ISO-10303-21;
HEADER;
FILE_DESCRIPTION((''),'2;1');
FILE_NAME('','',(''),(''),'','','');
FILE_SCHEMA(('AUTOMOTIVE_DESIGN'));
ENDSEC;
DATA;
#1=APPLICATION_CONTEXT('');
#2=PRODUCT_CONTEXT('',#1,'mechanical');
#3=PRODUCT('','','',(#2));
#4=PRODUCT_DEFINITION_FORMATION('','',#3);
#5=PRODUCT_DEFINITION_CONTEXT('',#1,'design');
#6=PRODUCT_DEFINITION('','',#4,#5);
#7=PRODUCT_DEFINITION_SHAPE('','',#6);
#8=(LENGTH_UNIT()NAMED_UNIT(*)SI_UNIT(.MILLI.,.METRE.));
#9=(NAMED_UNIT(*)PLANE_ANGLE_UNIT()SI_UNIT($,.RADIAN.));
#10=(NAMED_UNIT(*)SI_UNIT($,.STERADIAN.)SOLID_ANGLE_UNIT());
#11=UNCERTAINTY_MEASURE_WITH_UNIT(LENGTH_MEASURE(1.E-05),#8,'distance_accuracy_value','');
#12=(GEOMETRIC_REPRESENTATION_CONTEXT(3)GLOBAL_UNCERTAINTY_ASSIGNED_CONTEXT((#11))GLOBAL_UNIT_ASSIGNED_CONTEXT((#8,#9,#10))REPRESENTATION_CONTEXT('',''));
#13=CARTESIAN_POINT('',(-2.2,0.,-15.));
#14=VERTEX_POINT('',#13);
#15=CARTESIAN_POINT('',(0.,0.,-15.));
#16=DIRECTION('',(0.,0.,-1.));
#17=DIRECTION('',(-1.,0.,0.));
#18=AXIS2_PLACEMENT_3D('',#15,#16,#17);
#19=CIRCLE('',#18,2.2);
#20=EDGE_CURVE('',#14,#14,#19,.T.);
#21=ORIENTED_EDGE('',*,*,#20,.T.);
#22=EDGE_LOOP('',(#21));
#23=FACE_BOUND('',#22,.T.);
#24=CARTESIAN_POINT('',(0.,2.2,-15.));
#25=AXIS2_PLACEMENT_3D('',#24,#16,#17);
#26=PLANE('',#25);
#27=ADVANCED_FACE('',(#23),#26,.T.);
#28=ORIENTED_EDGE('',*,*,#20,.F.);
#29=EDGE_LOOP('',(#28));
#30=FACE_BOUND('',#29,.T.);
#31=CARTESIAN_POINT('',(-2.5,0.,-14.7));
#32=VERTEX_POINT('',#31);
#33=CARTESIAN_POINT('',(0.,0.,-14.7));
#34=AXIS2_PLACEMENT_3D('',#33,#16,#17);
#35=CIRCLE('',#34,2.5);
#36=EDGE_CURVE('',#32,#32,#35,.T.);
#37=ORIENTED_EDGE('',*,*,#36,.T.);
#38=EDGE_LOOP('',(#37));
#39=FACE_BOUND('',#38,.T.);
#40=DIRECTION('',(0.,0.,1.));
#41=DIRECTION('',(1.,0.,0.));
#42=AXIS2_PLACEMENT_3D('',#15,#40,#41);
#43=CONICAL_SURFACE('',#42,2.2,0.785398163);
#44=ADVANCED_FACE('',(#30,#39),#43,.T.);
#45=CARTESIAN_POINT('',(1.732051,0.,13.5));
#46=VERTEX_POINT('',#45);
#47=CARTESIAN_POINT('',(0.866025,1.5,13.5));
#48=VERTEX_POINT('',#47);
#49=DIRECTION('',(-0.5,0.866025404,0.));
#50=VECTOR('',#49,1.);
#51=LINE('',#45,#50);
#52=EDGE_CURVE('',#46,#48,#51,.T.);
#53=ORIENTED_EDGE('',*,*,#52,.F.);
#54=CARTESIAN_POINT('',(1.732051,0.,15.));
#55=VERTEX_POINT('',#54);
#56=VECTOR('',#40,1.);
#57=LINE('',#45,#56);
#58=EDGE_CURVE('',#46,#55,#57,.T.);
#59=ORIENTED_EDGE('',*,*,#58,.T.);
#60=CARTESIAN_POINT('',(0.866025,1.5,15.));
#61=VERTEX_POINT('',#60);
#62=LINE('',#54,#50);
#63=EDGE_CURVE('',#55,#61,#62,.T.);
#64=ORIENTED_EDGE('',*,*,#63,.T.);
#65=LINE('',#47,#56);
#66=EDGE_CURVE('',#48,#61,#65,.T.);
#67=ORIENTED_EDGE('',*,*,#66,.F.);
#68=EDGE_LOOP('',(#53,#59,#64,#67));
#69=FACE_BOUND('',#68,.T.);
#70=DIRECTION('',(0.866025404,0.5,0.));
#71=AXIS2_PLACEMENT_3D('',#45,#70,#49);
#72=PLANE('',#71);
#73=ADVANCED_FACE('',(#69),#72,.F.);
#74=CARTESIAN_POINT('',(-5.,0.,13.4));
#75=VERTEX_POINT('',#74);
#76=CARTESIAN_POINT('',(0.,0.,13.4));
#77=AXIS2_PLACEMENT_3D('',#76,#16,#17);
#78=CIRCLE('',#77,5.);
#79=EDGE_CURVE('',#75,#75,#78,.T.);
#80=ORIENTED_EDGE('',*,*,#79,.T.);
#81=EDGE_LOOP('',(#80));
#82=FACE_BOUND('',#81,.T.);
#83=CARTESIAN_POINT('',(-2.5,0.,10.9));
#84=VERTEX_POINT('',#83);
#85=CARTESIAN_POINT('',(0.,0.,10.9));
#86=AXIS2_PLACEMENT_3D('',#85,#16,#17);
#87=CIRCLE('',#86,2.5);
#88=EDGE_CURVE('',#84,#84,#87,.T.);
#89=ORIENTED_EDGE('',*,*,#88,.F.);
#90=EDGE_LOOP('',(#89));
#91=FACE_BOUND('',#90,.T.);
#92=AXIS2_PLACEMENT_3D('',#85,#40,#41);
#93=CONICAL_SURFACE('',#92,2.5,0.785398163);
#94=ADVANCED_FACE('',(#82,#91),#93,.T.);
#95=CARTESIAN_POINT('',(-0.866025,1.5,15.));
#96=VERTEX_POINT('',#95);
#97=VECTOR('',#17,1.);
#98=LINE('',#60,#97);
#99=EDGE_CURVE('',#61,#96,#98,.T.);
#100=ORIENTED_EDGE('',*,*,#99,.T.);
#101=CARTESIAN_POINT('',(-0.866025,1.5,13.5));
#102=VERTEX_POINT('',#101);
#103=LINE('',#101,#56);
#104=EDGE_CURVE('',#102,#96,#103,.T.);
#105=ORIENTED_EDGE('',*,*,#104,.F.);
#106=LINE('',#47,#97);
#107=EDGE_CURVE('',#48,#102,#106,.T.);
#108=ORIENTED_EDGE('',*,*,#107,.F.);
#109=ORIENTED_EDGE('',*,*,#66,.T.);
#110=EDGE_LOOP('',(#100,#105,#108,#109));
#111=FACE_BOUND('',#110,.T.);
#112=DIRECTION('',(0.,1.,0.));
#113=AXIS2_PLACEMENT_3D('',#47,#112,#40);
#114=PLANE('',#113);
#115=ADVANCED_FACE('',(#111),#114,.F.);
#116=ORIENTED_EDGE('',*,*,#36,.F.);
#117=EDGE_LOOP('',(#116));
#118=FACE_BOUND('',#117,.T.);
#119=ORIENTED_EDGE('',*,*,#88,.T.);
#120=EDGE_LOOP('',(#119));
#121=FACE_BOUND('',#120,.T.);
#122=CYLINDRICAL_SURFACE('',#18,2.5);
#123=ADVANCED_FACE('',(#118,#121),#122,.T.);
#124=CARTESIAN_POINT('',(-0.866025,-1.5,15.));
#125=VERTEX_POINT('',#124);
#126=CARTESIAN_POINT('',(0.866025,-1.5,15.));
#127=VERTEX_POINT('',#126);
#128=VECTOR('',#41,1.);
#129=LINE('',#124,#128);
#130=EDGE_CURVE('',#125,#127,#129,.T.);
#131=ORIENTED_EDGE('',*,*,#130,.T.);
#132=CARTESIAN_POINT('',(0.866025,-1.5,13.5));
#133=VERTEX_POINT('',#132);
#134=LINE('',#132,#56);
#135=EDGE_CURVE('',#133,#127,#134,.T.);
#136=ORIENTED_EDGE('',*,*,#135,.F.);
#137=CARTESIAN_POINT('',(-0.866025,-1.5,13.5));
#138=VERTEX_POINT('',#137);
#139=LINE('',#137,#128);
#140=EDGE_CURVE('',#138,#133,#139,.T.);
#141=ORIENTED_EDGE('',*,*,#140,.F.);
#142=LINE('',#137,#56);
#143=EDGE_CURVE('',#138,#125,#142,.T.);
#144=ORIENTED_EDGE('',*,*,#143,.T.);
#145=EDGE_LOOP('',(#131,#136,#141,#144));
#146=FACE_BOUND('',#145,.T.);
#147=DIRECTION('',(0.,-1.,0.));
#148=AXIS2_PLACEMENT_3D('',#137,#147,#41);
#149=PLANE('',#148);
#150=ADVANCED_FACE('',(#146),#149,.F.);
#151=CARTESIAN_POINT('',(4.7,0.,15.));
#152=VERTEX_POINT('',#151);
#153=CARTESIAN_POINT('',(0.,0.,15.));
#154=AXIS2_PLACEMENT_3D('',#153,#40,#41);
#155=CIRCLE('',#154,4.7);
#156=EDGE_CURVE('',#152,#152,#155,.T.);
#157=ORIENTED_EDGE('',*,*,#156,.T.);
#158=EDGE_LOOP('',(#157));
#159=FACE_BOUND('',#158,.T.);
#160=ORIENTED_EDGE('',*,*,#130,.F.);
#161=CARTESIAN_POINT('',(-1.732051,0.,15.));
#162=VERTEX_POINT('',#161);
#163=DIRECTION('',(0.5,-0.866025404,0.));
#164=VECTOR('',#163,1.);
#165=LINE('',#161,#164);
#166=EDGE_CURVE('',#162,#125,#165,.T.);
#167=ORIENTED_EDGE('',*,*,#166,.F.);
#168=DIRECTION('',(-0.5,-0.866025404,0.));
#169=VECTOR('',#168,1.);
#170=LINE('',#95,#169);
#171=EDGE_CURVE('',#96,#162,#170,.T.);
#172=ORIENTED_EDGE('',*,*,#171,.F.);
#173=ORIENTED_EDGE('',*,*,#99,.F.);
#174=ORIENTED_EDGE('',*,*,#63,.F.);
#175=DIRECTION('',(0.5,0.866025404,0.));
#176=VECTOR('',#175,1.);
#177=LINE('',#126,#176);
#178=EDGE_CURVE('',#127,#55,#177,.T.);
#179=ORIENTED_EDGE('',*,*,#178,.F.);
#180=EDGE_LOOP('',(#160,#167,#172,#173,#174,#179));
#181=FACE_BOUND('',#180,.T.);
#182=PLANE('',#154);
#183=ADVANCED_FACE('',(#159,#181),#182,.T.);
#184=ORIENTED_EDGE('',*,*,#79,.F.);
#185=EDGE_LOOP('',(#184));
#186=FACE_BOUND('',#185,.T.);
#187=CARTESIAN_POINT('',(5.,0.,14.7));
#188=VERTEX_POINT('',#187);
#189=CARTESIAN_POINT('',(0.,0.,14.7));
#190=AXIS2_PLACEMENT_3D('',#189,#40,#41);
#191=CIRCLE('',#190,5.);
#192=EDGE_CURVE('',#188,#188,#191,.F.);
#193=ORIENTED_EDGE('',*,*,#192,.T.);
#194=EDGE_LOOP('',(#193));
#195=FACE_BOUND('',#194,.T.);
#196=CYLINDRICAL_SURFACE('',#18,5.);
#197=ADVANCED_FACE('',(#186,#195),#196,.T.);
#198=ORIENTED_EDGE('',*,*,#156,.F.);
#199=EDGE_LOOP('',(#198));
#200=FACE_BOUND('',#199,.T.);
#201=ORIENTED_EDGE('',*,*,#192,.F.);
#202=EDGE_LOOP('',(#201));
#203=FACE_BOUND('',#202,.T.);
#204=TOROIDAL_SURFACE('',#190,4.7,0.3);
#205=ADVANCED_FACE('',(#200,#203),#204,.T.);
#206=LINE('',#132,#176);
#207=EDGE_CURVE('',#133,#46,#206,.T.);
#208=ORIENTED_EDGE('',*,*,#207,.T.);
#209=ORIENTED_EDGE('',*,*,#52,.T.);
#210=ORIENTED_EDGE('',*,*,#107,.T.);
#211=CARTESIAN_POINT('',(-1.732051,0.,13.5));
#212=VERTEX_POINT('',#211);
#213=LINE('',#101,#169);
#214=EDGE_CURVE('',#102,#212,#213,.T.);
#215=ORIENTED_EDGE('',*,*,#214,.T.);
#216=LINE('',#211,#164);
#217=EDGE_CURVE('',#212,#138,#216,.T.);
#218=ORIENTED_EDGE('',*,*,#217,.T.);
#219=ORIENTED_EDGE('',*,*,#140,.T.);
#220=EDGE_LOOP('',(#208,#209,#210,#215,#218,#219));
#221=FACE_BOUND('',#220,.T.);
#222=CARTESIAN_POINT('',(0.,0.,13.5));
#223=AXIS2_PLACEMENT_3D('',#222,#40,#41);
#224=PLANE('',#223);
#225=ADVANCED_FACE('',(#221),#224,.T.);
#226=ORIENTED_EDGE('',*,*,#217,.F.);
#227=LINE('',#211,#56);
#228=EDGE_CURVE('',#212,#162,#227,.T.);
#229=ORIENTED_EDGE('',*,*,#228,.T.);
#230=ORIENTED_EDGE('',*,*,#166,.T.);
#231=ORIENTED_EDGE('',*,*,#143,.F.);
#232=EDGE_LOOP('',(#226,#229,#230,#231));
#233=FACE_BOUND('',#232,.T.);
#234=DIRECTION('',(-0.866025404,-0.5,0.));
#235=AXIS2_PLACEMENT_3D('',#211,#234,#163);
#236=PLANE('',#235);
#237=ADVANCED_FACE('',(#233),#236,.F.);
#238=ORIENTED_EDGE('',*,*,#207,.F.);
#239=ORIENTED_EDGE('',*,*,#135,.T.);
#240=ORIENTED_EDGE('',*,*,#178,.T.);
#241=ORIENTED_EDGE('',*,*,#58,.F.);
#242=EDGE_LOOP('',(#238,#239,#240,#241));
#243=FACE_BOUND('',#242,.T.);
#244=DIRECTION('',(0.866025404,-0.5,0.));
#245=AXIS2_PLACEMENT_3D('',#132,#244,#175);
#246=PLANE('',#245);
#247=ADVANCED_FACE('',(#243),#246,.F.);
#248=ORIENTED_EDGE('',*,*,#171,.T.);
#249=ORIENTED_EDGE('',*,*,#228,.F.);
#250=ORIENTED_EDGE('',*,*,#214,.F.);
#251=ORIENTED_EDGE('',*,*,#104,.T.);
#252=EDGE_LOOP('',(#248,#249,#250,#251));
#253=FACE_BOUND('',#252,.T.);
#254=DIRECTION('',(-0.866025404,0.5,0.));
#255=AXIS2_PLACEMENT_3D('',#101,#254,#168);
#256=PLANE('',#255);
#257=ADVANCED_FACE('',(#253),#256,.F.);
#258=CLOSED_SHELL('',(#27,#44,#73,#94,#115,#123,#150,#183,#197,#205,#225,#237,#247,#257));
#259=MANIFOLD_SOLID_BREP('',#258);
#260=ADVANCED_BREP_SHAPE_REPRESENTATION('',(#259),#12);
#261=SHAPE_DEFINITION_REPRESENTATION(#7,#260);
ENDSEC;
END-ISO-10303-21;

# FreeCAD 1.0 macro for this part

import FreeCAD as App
import Part
import Sketcher
Q = App.Units.Quantity


def edges_at(feature, points):
    """Names of the edges that pass closest to the given points."""
    edges = feature.Shape.Edges
    near = lambda p: min(range(len(edges)), key=lambda i: edges[i].distToShape(Part.Vertex(*p))[0])
    return sorted({f"Edge{near(p) + 1}" for p in points})


def add_polygon(sketch, points):
    """Adds a closed chain of lines whose ends are joined by coincident constraints."""
    first, n = sketch.GeometryCount, len(points)
    for a, b in zip(points, points[1:] + points[:1]):
        sketch.addGeometry(Part.LineSegment(App.Vector(*a, 0), App.Vector(*b, 0)), False)
    for i in range(n):
        sketch.addConstraint(Sketcher.Constraint("Coincident", first + i, 2, first + (i + 1) % n, 1))

doc = App.newDocument("Part")
body = doc.addObject("PartDesign::Body", "Body")

sketch1 = doc.addObject("Sketcher::SketchObject", "Sketch")
body.addObject(sketch1)
sketch1.AttachmentSupport = (doc.YZ_Plane, [""])
sketch1.MapMode = "FlatFace"
add_polygon(sketch1, [(5, 15), (0, 15), (0, -15), (2.2, -15), (2.5, -14.7), (2.5, 10.9), (5, 13.4)])
sketch1.addConstraint([
    Sketcher.Constraint("Horizontal", 0),
    Sketcher.Constraint("Vertical", 1),
    Sketcher.Constraint("Horizontal", 2),
    Sketcher.Constraint("Vertical", 4),
    Sketcher.Constraint("Vertical", 6),
    Sketcher.Constraint("Symmetric", 0, 2, 1, 2, -1, 1),
    Sketcher.Constraint("Parallel", 3, 5),
    Sketcher.Constraint("DistanceX", 0, 2, 0, 1, 5.0),
    Sketcher.Constraint("DistanceY", 1, 2, 1, 1, 30.0),
    Sketcher.Constraint("Angle", 3, Q("45 deg")),
    Sketcher.Constraint("DistanceX", 2, 1, 2, 2, 2.2),
    Sketcher.Constraint("DistanceY", 4, 1, 4, 2, 25.6),
    Sketcher.Constraint("DistanceX", -1, 1, 3, 2, 2.5),
])
revolution = doc.addObject("PartDesign::Revolution", "Revolution")
body.addObject(revolution)
revolution.Profile = sketch1
revolution.ReferenceAxis = (sketch1, ["V_Axis"])
revolution.Angle = 360

sketch2 = doc.addObject("Sketcher::SketchObject", "Sketch001")
body.addObject(sketch2)
sketch2.AttachmentSupport = (doc.XY_Plane, [""])
sketch2.MapMode = "FlatFace"
sketch2.AttachmentOffset = App.Placement(App.Vector(0, 0, 15), App.Rotation())
add_polygon(sketch2, [(1.7, 0), (0.9, 1.5), (-0.9, 1.5), (-1.7, 0), (-0.9, -1.5), (0.9, -1.5)])
sketch2.addConstraint([
    Sketcher.Constraint("Horizontal", 1),
    Sketcher.Constraint("Horizontal", 4),
    Sketcher.Constraint("Symmetric", 0, 2, 3, 2, -1, 1),
    Sketcher.Constraint("Symmetric", 2, 2, 5, 2, -1, 1),
    Sketcher.Constraint("PointOnObject", 2, 2, -1),
    Sketcher.Constraint("Parallel", 2, 5),
    Sketcher.Constraint("Vertical", 1, 2, 3, 2),
    Sketcher.Constraint("Angle", 0, Q("120 deg")),
    Sketcher.Constraint("DistanceY", 3, 2, 1, 2, 3.0),
    Sketcher.Constraint("DistanceX", 1, 2, 1, 1, 1.732051),
])
pocket1 = doc.addObject("PartDesign::Pocket", "Pocket")
body.addObject(pocket1)
pocket1.Profile = sketch2
pocket1.Length = 1.5
doc.recompute()

fillet = doc.addObject("PartDesign::Fillet", "Fillet")
body.addObject(fillet)
fillet.Base = (pocket1, edges_at(pocket1, [(5, 0, 15)]))
fillet.Radius = 0.3

doc.recompute()
